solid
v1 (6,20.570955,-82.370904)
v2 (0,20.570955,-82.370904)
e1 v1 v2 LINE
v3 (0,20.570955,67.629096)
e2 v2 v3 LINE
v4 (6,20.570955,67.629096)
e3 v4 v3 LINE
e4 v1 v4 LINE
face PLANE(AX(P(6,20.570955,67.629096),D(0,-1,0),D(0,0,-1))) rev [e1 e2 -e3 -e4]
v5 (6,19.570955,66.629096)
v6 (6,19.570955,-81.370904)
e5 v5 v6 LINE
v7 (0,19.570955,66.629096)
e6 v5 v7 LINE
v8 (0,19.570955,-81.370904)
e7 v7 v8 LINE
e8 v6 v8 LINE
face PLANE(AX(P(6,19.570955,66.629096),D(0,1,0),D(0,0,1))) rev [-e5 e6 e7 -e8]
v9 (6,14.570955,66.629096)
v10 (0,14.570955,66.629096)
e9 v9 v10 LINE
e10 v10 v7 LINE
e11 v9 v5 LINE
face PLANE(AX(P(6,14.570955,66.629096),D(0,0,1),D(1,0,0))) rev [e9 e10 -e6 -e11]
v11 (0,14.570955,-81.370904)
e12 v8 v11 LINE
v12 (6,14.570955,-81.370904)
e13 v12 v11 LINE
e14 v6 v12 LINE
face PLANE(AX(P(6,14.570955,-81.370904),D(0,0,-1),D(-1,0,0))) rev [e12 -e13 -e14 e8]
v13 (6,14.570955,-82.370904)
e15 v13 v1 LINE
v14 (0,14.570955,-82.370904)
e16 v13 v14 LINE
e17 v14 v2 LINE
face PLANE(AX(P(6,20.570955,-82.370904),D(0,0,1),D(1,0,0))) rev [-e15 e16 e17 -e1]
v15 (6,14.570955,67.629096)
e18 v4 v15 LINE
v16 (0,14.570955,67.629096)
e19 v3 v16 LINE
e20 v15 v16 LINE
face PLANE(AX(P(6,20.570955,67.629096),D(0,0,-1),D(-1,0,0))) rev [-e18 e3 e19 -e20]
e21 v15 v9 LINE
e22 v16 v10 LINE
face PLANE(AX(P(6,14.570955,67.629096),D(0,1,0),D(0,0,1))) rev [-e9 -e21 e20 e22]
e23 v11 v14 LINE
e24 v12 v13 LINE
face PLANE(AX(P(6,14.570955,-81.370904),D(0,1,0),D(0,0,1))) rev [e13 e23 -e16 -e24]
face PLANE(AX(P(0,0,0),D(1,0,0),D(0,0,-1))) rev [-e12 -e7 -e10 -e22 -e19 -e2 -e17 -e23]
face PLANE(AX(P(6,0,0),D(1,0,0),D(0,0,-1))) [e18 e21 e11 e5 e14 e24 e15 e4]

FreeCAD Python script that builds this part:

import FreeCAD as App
import Part
import Sketcher

V = App.Vector

doc = App.newDocument("Part")
params = doc.addObject("Spreadsheet::Sheet", "Params")
for row, (alias, value) in enumerate([
    ("sketch1_width", "6 mm"),
    ("sketch1_width2", "5 mm"),
    ("sketch1_height", "1 mm"),
    ("sketch1_height2", "150 mm"),
    ("pad1_length", "6 mm"),
], start=1):
    params.set(f"A{row}", alias)
    params.set(f"B{row}", "=" + value)
    params.setAlias(f"B{row}", alias)

body = doc.addObject("PartDesign::Body", "Body")

# Sketch on YZ plane
sketch1 = body.newObject("Sketcher::SketchObject", "Sketch")
sketch1.AttachmentSupport = (doc.getObject("YZ_Plane"), [""])
sketch1.MapMode = "FlatFace"
sketch1.addGeometry([
    Part.LineSegment(V(14.6, -81.4, 0), V(14.6, -82.4, 0)),  # 0
    Part.LineSegment(V(14.6, -82.4, 0), V(20.6, -82.4, 0)),  # 1
    Part.LineSegment(V(20.6, -82.4, 0), V(20.6, 67.6, 0)),  # 2
    Part.LineSegment(V(20.6, 67.6, 0), V(14.6, 67.6, 0)),  # 3
    Part.LineSegment(V(14.6, 67.6, 0), V(14.6, 66.6, 0)),  # 4
    Part.LineSegment(V(14.6, 66.6, 0), V(19.6, 66.6, 0)),  # 5
    Part.LineSegment(V(19.6, 66.6, 0), V(19.6, -81.4, 0)),  # 6
    Part.LineSegment(V(19.6, -81.4, 0), V(14.6, -81.4, 0)),  # 7
], False)
sketch1.addConstraint([
    Sketcher.Constraint("Coincident", 0, 2, 1, 1),
    Sketcher.Constraint("Coincident", 1, 2, 2, 1),
    Sketcher.Constraint("Coincident", 2, 2, 3, 1),
    Sketcher.Constraint("Coincident", 3, 2, 4, 1),
    Sketcher.Constraint("Coincident", 4, 2, 5, 1),
    Sketcher.Constraint("Coincident", 5, 2, 6, 1),
    Sketcher.Constraint("Coincident", 6, 2, 7, 1),
    Sketcher.Constraint("Coincident", 7, 2, 0, 1),
    Sketcher.Constraint("Vertical", 0),
    Sketcher.Constraint("Horizontal", 1),
    Sketcher.Constraint("Vertical", 2),
    Sketcher.Constraint("Horizontal", 3),
    Sketcher.Constraint("Vertical", 4),
    Sketcher.Constraint("Horizontal", 5),
    Sketcher.Constraint("Vertical", 6),
    Sketcher.Constraint("Horizontal", 7),
    Sketcher.Constraint("Vertical", 0, 2, 3, 2),
    Sketcher.Constraint("Equal", 0, 4),
    Sketcher.Constraint("DistanceX", 1, 1, 1, 2, 6.0),
    Sketcher.Constraint("DistanceX", 5, 1, 5, 2, 5.0),
    Sketcher.Constraint("DistanceY", 0, 2, 0, 1, 1.0),
    Sketcher.Constraint("DistanceY", 2, 1, 2, 2, 150.0),
    Sketcher.Constraint("DistanceX", -1, 1, 0, 2, 14.570955),
    Sketcher.Constraint("DistanceY", 0, 2, -1, 1, 82.370904),
])
sketch1.setExpression("Constraints[18]", "Params.sketch1_width")
sketch1.setExpression("Constraints[19]", "Params.sketch1_width2")
sketch1.setExpression("Constraints[20]", "Params.sketch1_height")
sketch1.setExpression("Constraints[21]", "Params.sketch1_height2")
pad1 = body.newObject("PartDesign::Pad", "Pad")
pad1.Profile = sketch1
pad1.setExpression("Length", "Params.pad1_length")

doc.recompute()
